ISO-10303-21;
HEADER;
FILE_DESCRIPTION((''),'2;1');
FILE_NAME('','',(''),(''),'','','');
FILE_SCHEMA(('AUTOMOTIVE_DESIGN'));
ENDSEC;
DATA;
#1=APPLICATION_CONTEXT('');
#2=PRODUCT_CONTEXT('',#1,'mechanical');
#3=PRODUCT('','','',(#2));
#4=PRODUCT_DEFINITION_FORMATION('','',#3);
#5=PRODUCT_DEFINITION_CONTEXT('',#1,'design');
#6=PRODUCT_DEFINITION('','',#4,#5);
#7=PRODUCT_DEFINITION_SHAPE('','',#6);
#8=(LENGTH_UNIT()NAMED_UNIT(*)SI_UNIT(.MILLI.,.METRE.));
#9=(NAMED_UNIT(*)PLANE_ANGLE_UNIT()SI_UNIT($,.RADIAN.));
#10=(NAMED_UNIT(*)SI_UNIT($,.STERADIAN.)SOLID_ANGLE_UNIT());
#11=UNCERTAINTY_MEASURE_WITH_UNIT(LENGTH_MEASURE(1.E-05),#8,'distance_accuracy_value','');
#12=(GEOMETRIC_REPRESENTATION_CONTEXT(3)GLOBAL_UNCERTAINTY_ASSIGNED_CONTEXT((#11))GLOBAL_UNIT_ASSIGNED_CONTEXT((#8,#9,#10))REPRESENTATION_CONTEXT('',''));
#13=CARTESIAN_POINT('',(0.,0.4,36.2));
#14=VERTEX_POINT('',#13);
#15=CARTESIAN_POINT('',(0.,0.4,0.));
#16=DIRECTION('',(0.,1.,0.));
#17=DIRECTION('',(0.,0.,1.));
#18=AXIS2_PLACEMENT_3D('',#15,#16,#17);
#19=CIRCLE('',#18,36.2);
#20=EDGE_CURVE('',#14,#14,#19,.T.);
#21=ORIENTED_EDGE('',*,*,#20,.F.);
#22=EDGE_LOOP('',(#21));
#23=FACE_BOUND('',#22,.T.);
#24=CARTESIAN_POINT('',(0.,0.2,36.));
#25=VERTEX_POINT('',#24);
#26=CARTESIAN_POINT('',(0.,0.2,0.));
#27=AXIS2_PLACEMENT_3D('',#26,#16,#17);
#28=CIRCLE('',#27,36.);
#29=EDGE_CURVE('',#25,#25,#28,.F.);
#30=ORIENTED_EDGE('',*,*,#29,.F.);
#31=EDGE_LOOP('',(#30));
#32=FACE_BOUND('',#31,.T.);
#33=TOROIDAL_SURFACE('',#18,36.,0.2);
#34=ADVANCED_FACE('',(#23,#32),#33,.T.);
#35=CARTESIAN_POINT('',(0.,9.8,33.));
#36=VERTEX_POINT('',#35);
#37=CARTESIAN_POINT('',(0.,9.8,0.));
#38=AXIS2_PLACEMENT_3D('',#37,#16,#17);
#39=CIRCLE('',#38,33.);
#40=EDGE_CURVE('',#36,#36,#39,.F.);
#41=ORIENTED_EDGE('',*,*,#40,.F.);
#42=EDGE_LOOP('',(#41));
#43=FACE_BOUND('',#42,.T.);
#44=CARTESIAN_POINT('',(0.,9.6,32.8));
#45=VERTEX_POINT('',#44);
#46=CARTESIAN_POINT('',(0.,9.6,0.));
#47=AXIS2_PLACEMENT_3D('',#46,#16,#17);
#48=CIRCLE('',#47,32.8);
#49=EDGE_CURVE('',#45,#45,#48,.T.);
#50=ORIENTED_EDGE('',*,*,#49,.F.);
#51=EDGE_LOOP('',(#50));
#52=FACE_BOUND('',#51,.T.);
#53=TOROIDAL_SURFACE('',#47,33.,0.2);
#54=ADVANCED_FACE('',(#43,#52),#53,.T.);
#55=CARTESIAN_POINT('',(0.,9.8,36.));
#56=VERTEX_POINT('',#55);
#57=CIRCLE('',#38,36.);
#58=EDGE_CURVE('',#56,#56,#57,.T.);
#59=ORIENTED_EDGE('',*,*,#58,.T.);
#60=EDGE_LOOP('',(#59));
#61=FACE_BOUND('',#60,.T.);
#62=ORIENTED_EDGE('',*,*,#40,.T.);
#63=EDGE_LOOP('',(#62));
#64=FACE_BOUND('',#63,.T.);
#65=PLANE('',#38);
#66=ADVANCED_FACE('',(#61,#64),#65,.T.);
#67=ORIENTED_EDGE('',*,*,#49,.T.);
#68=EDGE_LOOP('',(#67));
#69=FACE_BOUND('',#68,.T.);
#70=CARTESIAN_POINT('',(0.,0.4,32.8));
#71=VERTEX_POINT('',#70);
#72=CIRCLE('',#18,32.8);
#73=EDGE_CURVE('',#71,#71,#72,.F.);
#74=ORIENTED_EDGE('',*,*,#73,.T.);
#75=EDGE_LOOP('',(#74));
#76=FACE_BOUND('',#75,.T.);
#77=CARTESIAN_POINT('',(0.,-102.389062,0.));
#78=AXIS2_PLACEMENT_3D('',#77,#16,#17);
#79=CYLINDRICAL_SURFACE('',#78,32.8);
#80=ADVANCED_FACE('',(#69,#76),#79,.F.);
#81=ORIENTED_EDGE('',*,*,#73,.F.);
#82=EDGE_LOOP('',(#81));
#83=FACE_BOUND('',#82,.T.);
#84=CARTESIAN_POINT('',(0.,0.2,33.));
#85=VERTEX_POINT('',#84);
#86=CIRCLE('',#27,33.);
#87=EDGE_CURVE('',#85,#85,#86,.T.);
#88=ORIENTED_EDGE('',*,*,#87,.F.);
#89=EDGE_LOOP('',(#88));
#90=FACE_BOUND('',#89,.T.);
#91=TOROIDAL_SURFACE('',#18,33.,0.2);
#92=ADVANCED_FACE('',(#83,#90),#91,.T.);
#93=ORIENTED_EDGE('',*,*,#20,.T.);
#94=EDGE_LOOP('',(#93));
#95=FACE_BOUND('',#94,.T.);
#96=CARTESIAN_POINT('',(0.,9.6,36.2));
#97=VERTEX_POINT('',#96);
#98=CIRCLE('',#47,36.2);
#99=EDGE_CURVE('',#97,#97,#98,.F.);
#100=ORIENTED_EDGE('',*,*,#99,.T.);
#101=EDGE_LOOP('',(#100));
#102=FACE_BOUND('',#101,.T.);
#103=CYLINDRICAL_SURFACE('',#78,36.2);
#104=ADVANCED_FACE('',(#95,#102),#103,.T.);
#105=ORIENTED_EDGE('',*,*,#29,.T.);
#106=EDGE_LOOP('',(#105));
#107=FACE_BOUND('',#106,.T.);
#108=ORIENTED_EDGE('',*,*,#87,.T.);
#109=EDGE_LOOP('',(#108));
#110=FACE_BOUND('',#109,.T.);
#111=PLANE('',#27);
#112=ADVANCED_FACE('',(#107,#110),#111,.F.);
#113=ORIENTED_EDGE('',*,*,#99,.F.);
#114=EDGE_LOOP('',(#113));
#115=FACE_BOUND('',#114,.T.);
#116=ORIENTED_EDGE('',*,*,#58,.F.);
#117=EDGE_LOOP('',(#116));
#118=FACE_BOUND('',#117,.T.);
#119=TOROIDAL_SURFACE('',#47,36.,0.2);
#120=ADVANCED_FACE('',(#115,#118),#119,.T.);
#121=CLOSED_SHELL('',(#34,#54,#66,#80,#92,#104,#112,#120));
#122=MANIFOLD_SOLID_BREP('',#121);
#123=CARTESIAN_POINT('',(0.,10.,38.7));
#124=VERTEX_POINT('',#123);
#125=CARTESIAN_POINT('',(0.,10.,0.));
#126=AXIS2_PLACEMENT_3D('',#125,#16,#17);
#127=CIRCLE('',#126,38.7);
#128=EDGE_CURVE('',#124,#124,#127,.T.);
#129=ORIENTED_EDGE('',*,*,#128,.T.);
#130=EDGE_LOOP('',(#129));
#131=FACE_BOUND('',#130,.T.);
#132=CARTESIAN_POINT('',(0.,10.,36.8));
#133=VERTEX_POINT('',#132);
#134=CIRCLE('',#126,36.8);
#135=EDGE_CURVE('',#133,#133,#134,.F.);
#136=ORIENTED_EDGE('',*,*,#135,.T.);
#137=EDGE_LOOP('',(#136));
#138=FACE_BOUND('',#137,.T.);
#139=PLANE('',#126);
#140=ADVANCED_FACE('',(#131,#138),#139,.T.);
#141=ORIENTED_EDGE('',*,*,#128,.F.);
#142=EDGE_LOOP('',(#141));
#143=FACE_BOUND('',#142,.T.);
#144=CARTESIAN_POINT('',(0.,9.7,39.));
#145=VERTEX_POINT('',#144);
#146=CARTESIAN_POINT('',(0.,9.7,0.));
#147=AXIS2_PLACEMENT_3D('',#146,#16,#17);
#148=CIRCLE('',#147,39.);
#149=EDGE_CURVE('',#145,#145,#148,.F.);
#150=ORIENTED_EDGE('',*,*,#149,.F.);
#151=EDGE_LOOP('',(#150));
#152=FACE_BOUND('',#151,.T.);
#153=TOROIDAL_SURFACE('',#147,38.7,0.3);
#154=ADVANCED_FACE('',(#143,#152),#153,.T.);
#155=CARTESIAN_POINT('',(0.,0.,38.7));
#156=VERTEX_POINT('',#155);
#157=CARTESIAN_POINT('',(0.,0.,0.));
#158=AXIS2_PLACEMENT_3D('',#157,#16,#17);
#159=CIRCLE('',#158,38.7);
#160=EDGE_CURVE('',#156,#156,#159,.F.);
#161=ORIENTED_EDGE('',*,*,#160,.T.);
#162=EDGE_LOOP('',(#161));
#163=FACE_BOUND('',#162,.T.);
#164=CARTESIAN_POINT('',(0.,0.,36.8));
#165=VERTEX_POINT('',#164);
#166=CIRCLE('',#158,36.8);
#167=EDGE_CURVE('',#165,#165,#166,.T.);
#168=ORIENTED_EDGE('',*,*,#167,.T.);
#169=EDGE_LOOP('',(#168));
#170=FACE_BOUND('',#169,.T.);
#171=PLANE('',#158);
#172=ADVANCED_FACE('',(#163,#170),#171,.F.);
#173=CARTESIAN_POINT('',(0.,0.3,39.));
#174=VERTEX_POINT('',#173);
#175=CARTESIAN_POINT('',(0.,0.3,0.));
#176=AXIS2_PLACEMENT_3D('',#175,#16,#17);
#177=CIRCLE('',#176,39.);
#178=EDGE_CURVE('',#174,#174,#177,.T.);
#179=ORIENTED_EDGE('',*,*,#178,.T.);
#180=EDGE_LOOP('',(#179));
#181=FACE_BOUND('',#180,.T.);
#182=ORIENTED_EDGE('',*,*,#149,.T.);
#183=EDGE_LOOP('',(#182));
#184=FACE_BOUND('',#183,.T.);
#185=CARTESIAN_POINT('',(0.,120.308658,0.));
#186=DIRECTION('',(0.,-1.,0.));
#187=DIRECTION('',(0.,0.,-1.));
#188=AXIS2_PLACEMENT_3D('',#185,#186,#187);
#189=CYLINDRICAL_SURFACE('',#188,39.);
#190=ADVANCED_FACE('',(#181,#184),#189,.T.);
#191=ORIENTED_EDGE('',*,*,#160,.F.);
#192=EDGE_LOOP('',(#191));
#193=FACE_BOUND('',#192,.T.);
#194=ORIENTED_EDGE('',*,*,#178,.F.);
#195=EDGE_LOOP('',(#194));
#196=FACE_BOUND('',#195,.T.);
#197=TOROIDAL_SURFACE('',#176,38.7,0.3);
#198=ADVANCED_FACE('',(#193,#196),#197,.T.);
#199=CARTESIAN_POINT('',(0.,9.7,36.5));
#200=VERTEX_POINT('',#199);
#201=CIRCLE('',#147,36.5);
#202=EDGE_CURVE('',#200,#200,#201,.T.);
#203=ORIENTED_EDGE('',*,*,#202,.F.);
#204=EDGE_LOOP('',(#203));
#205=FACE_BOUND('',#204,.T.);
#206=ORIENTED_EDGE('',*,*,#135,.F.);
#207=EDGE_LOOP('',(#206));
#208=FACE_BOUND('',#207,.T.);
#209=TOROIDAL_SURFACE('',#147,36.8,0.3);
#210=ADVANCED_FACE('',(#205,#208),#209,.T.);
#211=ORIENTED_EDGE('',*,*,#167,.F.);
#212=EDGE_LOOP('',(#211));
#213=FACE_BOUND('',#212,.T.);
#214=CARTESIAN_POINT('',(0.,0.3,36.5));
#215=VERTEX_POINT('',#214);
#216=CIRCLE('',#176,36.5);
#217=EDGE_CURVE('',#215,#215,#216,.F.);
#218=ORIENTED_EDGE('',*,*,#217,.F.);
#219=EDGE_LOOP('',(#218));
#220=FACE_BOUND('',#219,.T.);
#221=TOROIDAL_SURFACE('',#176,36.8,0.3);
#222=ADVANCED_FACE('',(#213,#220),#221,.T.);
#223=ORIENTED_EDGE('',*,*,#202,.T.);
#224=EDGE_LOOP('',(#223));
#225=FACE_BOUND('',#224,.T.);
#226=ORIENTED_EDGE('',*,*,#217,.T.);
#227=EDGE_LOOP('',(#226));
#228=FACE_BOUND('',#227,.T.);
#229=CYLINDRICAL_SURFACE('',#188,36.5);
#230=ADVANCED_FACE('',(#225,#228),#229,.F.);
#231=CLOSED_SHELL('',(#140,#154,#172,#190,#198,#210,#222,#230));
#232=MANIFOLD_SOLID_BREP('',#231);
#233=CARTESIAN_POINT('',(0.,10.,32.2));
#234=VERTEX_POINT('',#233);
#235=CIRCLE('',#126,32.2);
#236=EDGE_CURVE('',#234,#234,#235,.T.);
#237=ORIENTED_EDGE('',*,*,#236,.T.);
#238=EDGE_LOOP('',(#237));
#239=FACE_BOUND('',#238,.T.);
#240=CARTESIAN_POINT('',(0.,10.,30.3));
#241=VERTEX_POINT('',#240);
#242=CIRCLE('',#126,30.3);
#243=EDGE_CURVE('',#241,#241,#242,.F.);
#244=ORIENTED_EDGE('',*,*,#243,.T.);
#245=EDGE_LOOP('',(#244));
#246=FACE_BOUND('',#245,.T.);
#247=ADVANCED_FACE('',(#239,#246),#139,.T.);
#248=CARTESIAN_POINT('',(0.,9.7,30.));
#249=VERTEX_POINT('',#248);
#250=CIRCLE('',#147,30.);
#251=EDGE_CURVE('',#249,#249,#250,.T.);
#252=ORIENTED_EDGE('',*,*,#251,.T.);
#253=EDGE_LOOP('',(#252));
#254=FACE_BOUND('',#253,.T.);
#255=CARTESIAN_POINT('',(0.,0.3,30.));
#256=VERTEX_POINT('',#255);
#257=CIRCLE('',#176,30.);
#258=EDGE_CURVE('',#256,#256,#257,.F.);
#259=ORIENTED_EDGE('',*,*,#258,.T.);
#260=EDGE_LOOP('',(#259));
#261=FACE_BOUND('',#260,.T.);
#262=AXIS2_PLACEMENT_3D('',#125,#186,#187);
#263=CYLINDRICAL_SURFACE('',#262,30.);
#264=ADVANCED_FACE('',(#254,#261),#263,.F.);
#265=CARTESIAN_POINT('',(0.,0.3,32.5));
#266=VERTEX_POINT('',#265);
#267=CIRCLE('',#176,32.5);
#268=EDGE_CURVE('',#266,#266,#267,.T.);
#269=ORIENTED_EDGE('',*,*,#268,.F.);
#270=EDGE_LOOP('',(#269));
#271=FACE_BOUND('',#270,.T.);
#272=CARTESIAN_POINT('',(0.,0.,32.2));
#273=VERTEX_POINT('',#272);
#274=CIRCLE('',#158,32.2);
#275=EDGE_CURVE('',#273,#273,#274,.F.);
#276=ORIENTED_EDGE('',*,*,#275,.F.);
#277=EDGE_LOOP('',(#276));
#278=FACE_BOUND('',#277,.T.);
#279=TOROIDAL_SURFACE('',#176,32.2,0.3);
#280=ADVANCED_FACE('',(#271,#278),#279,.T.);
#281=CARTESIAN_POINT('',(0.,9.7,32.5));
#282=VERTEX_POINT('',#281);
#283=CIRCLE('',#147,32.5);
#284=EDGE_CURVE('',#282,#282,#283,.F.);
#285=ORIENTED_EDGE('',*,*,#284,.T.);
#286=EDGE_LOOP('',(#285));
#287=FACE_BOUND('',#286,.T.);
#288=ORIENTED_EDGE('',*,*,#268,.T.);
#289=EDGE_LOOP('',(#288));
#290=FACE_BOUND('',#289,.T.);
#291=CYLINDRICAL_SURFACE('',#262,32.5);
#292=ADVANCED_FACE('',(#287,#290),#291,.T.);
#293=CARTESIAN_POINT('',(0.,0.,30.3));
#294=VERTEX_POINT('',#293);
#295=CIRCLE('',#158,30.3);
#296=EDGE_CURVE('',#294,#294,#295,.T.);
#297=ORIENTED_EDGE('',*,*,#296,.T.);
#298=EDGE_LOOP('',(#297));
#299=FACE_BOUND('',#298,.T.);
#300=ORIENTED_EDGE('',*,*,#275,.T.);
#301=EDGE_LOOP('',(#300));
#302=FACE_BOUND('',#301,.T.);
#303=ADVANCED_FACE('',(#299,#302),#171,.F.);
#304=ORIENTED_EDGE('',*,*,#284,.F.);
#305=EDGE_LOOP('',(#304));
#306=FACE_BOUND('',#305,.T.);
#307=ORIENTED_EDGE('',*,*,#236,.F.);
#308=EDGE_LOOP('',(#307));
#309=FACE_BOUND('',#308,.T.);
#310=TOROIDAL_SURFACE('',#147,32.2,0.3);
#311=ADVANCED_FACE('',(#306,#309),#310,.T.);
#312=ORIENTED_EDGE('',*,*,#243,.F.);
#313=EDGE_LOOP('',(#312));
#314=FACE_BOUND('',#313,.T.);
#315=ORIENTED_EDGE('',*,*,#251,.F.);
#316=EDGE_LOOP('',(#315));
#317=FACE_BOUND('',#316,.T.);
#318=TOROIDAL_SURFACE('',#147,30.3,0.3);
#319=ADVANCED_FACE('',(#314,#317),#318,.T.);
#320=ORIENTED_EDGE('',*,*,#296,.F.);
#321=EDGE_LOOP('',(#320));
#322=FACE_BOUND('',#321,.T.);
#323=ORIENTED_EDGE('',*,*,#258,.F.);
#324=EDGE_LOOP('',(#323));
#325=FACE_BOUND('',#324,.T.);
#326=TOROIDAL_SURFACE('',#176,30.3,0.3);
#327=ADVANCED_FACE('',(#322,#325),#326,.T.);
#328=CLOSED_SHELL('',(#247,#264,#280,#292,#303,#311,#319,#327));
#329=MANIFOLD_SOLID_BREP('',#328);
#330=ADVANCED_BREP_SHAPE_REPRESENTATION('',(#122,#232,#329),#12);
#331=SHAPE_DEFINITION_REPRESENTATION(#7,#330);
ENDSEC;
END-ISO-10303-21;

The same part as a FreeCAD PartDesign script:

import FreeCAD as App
import Part
import Sketcher

V = App.Vector
Q = App.Units.Quantity


def edges_at(feature, points):
    """Names of the edges that pass closest to the given points."""
    edges = feature.Shape.Edges
    near = lambda p: min(range(len(edges)), key=lambda i: edges[i].distToShape(Part.Vertex(*p))[0])
    return sorted({f"Edge{near(p) + 1}" for p in points})

doc = App.newDocument("Part")
params = doc.addObject("Spreadsheet::Sheet", "Params")
for row, (alias, value) in enumerate([
    ("sketch1_diameter", "65 mm"),
    ("sketch1_diameter2", "60 mm"),
    ("pad1_length", "10 mm"),
    ("fillet_radius", "0.3 mm"),
    ("sketch2_diameter", "78 mm"),
    ("sketch2_diameter2", "73 mm"),
    ("pad2_length", "10 mm"),
    ("fillet2_radius", "0.3 mm"),
    ("sketch3_diameter", "72.4 mm"),
    ("sketch3_diameter2", "65.6 mm"),
    ("pad3_length", "9.6 mm"),
    ("fillet3_radius", "0.2 mm"),
], start=1):
    params.set(f"A{row}", alias)
    params.set(f"B{row}", "=" + value)
    params.setAlias(f"B{row}", alias)

body = doc.addObject("PartDesign::Body", "Body")

sketch1 = body.newObject("Sketcher::SketchObject", "Sketch")
sketch1.AttachmentSupport = (doc.getObject("XZ_Plane"), [""])
sketch1.MapMode = "FlatFace"
sketch1.addGeometry([
    Part.Circle(V(0, 0, 0), V(0, 0, 1), 32),
    Part.Circle(V(0, 0, 0), V(0, 0, 1), 30),
], False)
sketch1.addConstraint([
    Sketcher.Constraint("Coincident", 0, 3, -1, 1),
    Sketcher.Constraint("Coincident", 1, 3, -1, 1),
    Sketcher.Constraint("Diameter", 0, Q("65 mm")),
    Sketcher.Constraint("Diameter", 1, Q("60 mm")),
])
sketch1.setExpression("Constraints[2]", "Params.sketch1_diameter")
sketch1.setExpression("Constraints[3]", "Params.sketch1_diameter2")
pad1 = body.newObject("PartDesign::Pad", "Pad")
pad1.Profile = sketch1
pad1.setExpression("Length", "Params.pad1_length")
pad1.Reversed = True
doc.recompute()

fillet = body.newObject("PartDesign::Fillet", "Fillet")
fillet.Base = (pad1, edges_at(pad1, [
    (0, 0, -32.5),
    (0, 10, -32.5),
    (0, 0, -30),
    (0, 10, -30),
]))
fillet.setExpression("Radius", "Params.fillet_radius")
body2 = doc.addObject("PartDesign::Body", "Body001")

sketch2 = body2.newObject("Sketcher::SketchObject", "Sketch001")
sketch2.AttachmentSupport = (doc.getObject("XZ_Plane001"), [""])
sketch2.MapMode = "FlatFace"
sketch2.addGeometry([
    Part.Circle(V(0, 0, 0), V(0, 0, 1), 39),
    Part.Circle(V(0, 0, 0), V(0, 0, 1), 36),
], False)
sketch2.addConstraint([
    Sketcher.Constraint("Coincident", 0, 3, -1, 1),
    Sketcher.Constraint("Coincident", 1, 3, -1, 1),
    Sketcher.Constraint("Diameter", 0, Q("78 mm")),
    Sketcher.Constraint("Diameter", 1, Q("73 mm")),
])
sketch2.setExpression("Constraints[2]", "Params.sketch2_diameter")
sketch2.setExpression("Constraints[3]", "Params.sketch2_diameter2")
pad2 = body2.newObject("PartDesign::Pad", "Pad001")
pad2.Profile = sketch2
pad2.setExpression("Length", "Params.pad2_length")
pad2.Reversed = True
doc.recompute()

fillet2 = body2.newObject("PartDesign::Fillet", "Fillet001")
fillet2.Base = (pad2, edges_at(pad2, [
    (0, 10, -39),
    (0, 0, -39),
    (0, 0, -36.5),
    (0, 10, -36.5),
]))
fillet2.setExpression("Radius", "Params.fillet2_radius")
body3 = doc.addObject("PartDesign::Body", "Body002")

sketch3 = body3.newObject("Sketcher::SketchObject", "Sketch002")
sketch3.AttachmentSupport = (doc.getObject("XZ_Plane002"), [""])
sketch3.MapMode = "FlatFace"
sketch3.AttachmentOffset = App.Placement(V(0, 0, -9.8), App.Rotation())
sketch3.addGeometry([
    Part.Circle(V(0, 0, 0), V(0, 0, 1), 36),
    Part.Circle(V(0, 0, 0), V(0, 0, 1), 33),
], False)
sketch3.addConstraint([
    Sketcher.Constraint("Coincident", 0, 3, -1, 1),
    Sketcher.Constraint("Coincident", 1, 3, -1, 1),
    Sketcher.Constraint("Diameter", 0, Q("72.4 mm")),
    Sketcher.Constraint("Diameter", 1, Q("65.6 mm")),
])
sketch3.setExpression("Constraints[2]", "Params.sketch3_diameter")
sketch3.setExpression("Constraints[3]", "Params.sketch3_diameter2")
pad3 = body3.newObject("PartDesign::Pad", "Pad002")
pad3.Profile = sketch3
pad3.setExpression("Length", "Params.pad3_length")
doc.recompute()

fillet3 = body3.newObject("PartDesign::Fillet", "Fillet002")
fillet3.Base = (pad3, edges_at(pad3, [
    (0, 9.8, -36.2),
    (0, 9.8, -32.8),
    (0, 0.2, -36.2),
    (0, 0.2, -32.8),
]))
fillet3.setExpression("Radius", "Params.fillet3_radius")

doc.recompute()
